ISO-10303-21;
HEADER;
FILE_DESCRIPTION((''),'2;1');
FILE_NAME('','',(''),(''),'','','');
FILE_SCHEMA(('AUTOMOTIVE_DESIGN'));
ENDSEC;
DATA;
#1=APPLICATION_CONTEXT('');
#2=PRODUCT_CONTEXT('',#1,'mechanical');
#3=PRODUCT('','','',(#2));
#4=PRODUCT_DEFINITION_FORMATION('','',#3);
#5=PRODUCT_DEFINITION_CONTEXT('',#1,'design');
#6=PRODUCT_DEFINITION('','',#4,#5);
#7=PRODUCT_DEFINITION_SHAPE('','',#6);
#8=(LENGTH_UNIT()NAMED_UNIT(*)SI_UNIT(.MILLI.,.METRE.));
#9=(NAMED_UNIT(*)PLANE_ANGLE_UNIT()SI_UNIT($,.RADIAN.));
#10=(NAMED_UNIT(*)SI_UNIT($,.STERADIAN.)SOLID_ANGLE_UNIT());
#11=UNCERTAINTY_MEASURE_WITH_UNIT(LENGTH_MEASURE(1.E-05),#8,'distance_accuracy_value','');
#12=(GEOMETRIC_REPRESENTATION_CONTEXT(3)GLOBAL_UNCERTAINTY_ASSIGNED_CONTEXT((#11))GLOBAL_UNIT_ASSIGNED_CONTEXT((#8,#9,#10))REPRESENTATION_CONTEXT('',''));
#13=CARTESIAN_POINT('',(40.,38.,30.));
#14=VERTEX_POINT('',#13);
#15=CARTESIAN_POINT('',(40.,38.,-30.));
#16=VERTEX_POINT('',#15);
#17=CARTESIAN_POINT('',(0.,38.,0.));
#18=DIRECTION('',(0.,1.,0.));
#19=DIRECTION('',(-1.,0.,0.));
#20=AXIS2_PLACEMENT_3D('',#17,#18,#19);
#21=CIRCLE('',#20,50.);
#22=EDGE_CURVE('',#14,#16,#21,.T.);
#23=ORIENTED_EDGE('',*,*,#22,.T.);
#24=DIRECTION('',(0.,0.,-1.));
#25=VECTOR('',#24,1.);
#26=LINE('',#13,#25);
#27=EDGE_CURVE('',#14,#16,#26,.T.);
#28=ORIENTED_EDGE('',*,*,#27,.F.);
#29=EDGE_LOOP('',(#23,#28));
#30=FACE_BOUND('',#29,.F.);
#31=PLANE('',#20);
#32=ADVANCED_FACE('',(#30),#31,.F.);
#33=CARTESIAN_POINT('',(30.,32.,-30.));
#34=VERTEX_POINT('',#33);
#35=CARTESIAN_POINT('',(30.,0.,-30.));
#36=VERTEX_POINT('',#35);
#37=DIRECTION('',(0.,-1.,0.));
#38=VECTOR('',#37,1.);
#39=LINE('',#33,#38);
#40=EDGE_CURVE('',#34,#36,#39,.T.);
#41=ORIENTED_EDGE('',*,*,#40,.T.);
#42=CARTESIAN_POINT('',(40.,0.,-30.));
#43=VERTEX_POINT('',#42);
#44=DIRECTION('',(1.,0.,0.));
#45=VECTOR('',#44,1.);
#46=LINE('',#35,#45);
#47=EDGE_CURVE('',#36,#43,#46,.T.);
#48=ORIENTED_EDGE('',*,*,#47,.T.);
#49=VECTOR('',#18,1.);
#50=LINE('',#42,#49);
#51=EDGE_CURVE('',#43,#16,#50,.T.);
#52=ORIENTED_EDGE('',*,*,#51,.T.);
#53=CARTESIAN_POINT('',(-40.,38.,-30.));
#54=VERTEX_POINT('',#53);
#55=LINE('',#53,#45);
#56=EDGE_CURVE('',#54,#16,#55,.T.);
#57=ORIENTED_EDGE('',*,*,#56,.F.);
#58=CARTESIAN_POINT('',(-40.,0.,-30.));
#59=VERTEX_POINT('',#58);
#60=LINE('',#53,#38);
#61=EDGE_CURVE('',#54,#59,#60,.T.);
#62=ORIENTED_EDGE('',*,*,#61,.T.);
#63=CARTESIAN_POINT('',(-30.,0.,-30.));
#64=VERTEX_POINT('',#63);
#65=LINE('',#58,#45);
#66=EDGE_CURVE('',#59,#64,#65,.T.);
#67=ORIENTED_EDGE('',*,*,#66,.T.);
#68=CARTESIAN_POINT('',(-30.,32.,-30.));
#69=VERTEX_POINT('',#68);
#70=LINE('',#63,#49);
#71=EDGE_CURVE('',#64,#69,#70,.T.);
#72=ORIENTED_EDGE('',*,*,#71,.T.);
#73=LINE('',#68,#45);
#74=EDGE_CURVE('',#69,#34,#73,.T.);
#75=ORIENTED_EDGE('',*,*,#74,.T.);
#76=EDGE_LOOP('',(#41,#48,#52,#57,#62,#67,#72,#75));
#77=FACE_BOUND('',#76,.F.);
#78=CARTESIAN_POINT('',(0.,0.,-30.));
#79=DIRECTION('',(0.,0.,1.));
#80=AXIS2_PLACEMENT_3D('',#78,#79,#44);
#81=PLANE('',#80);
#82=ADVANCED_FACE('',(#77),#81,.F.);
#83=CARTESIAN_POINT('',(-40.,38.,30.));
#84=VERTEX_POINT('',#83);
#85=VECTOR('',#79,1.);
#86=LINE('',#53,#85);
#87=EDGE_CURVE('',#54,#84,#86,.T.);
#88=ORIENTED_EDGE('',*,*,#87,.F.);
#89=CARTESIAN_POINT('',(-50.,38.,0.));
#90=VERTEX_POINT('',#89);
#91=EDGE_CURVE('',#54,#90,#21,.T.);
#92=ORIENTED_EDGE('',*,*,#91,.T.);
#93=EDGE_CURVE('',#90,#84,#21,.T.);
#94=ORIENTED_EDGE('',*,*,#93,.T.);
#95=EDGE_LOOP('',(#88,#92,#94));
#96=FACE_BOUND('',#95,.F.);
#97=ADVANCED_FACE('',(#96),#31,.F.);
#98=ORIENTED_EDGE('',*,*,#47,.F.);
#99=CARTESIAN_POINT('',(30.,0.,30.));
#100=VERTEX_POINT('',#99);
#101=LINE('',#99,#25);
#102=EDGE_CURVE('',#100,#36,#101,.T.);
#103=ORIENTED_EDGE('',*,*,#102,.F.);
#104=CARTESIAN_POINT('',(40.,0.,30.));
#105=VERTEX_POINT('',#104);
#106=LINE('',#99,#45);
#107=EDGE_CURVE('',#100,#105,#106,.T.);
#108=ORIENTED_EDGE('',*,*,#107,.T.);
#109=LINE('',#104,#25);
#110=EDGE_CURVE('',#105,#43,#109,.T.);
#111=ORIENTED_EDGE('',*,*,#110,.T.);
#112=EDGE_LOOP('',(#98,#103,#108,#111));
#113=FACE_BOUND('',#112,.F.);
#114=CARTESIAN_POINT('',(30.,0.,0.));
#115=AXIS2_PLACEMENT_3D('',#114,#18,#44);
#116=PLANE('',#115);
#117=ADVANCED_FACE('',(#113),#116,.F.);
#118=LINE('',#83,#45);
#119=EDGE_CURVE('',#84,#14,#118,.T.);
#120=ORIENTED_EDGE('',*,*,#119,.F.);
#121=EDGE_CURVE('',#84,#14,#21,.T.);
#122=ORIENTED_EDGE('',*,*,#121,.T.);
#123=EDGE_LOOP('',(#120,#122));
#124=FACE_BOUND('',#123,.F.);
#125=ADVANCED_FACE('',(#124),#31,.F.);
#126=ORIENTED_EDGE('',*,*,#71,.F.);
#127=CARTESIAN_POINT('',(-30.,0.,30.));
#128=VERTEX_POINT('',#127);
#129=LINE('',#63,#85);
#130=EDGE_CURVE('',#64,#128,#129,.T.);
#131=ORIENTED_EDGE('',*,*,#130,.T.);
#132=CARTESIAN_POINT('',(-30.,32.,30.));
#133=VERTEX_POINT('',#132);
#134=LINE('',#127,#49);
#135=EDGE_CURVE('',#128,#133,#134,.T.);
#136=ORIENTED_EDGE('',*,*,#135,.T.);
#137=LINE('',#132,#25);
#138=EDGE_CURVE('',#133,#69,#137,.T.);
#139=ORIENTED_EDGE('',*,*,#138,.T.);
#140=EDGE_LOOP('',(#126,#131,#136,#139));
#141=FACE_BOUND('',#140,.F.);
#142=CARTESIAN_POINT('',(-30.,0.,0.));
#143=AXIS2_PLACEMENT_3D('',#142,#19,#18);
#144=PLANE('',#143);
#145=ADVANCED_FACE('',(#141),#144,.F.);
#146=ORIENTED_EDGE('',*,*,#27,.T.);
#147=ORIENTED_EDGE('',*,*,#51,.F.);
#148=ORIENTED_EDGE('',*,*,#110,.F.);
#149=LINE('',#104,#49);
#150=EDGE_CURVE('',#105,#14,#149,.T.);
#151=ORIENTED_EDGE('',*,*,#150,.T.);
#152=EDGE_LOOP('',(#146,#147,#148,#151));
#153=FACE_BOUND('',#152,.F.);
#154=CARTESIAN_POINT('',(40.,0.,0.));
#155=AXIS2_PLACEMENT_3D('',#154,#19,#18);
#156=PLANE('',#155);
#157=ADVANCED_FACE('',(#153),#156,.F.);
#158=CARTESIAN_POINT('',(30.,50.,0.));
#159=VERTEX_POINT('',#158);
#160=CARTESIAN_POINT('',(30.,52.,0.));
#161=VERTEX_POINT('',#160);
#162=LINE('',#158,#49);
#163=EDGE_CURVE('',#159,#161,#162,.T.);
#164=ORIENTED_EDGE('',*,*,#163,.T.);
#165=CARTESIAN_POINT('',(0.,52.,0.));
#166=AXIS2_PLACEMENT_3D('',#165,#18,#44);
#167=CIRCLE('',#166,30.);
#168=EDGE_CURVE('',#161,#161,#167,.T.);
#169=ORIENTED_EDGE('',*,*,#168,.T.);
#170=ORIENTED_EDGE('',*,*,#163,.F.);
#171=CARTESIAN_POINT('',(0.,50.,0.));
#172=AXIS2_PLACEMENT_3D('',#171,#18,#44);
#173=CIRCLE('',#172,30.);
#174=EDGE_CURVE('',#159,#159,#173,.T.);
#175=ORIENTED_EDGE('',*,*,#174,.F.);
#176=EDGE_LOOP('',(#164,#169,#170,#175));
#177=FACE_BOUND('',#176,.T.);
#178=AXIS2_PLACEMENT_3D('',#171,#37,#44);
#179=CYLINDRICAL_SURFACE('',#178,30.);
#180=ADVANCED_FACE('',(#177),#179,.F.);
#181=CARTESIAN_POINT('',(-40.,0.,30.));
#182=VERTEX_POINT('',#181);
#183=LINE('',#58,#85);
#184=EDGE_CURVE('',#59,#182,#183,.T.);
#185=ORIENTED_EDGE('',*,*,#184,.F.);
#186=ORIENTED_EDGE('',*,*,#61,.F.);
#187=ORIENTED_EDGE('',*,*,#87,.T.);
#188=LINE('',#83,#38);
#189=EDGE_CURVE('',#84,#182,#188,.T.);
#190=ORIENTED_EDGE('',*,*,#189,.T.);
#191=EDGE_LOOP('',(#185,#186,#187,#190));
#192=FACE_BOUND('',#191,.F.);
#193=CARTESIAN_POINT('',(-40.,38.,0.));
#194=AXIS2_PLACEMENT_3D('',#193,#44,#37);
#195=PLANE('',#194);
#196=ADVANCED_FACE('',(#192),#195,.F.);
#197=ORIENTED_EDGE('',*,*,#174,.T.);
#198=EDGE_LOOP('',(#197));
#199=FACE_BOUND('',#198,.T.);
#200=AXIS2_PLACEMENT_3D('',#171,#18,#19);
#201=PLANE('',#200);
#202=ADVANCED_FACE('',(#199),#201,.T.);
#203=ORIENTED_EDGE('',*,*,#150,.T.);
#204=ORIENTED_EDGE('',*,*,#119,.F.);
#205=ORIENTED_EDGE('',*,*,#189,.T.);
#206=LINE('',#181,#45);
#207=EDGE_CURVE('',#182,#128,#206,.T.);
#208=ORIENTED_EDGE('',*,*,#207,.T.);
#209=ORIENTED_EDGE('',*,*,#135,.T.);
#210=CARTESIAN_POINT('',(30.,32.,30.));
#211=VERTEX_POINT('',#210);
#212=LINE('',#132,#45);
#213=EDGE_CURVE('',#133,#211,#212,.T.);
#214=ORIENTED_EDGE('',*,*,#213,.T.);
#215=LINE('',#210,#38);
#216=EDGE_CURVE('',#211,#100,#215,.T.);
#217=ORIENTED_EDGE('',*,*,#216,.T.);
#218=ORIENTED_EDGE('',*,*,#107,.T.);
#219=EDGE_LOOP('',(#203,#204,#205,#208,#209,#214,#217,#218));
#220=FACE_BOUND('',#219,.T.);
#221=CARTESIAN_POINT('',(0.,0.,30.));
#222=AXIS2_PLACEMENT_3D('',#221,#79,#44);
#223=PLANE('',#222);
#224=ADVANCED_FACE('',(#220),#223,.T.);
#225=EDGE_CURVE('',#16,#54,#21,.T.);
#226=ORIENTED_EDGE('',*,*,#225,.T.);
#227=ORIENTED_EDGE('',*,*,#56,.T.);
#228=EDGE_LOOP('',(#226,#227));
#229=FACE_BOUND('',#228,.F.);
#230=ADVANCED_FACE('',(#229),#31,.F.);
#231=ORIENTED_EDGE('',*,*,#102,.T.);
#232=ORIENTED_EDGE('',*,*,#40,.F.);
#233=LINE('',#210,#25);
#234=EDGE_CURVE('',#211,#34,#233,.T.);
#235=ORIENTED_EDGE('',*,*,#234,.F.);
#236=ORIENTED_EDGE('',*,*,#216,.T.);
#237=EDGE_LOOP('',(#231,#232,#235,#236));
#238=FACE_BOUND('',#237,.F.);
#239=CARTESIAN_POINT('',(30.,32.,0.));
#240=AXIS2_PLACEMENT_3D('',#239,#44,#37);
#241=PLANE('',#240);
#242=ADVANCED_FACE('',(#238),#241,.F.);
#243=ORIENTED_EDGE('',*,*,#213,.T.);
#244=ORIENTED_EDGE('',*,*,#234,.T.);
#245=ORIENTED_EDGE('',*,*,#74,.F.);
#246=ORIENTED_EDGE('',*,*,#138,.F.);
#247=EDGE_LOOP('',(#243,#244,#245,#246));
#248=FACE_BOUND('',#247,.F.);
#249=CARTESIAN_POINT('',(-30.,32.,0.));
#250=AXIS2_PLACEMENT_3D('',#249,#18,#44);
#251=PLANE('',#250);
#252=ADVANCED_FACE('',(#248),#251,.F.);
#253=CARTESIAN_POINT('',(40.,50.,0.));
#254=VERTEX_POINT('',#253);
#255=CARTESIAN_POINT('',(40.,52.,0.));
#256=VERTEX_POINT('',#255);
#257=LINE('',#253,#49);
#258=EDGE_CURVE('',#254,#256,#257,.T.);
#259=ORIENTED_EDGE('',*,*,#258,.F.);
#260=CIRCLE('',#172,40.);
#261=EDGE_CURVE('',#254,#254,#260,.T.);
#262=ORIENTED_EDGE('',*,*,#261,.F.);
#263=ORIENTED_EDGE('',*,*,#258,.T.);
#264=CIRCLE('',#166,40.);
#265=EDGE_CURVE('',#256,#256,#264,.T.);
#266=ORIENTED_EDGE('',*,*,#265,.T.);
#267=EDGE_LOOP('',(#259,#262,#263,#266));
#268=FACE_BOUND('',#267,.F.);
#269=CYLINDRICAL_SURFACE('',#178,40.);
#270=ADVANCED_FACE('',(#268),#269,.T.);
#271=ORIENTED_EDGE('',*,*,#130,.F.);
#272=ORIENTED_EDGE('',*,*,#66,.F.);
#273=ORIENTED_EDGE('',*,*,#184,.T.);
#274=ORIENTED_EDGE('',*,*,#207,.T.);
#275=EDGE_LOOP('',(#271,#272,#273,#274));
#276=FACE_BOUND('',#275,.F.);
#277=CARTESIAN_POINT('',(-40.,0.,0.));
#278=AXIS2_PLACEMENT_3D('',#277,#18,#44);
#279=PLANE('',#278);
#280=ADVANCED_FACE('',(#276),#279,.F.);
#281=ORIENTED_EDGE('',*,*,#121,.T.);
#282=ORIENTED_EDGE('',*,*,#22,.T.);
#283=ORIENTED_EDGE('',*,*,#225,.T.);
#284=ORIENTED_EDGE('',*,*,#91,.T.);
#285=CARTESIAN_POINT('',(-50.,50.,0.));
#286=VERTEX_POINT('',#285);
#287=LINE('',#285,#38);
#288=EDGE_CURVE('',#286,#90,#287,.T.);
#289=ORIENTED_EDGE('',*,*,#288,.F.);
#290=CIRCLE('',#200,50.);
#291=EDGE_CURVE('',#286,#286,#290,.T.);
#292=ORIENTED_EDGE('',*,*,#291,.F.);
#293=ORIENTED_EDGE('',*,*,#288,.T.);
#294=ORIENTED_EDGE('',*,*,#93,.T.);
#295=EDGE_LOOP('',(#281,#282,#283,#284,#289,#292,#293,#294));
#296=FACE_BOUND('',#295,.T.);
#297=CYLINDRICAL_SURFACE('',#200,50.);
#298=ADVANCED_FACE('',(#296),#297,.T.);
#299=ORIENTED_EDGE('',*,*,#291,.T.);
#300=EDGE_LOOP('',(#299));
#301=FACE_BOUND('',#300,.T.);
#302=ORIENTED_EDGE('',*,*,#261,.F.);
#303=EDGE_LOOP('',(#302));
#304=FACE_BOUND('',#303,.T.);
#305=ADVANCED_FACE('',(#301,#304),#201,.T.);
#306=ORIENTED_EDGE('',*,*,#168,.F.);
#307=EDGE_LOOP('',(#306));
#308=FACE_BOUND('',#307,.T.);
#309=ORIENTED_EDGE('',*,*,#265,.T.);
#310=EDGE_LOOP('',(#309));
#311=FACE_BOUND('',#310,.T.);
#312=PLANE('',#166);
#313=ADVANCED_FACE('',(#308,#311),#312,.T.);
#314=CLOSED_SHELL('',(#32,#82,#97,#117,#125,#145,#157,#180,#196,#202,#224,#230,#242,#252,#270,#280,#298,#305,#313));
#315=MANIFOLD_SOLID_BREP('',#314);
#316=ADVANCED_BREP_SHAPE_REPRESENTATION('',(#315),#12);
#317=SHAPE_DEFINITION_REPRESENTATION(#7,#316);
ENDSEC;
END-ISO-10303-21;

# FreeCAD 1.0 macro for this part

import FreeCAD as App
import Part
import Sketcher

V = App.Vector

doc = App.newDocument("Part")
params = doc.addObject("Spreadsheet::Sheet", "Params")
for row, (alias, value) in enumerate([
    ("sketch1_diameter", "100 mm"),
    ("pad1_length", "12 mm"),
    ("sketch2_width", "10 mm"),
    ("sketch2_width2", "60 mm"),
    ("sketch2_height", "32 mm"),
    ("sketch2_height2", "38 mm"),
    ("pad2_length", "60 mm"),
    ("sketch3_diameter", "80 mm"),
    ("sketch3_diameter2", "60 mm"),
    ("pad3_length", "2 mm"),
], start=1):
    params.set(f"A{row}", alias)
    params.set(f"B{row}", "=" + value)
    params.setAlias(f"B{row}", alias)

body = doc.addObject("PartDesign::Body", "Body")

sketch1 = body.newObject("Sketcher::SketchObject", "Sketch")
sketch1.AttachmentSupport = (doc.getObject("XZ_Plane"), [""])
sketch1.MapMode = "FlatFace"
sketch1.AttachmentOffset = App.Placement(V(0, 0, -50), App.Rotation())
sketch1.addGeometry(Part.Circle(V(0, 0, 0), V(0, 0, 1), 50), False)
sketch1.addConstraint(Sketcher.Constraint("Coincident", 0, 3, -1, 1))
sketch1.addConstraint(Sketcher.Constraint("Diameter", 0, 100.0))
sketch1.setExpression("Constraints[1]", "Params.sketch1_diameter")
pad1 = body.newObject("PartDesign::Pad", "Pad")
pad1.Profile = sketch1
pad1.setExpression("Length", "Params.pad1_length")

sketch2 = body.newObject("Sketcher::SketchObject", "Sketch001")
sketch2.AttachmentSupport = (doc.getObject("XY_Plane"), [""])
sketch2.MapMode = "FlatFace"
sketch2.addGeometry(Part.LineSegment(V(40, 38, 0), V(-40, 38, 0)), False)
sketch2.addGeometry(Part.LineSegment(V(-40, 38, 0), V(-40, 0, 0)), False)
sketch2.addGeometry(Part.LineSegment(V(-40, 0, 0), V(-30, 0, 0)), False)
sketch2.addGeometry(Part.LineSegment(V(-30, 0, 0), V(-30, 32, 0)), False)
sketch2.addGeometry(Part.LineSegment(V(-30, 32, 0), V(30, 32, 0)), False)
sketch2.addGeometry(Part.LineSegment(V(30, 32, 0), V(30, 0, 0)), False)
sketch2.addGeometry(Part.LineSegment(V(30, 0, 0), V(40, 0, 0)), False)
sketch2.addGeometry(Part.LineSegment(V(40, 0, 0), V(40, 38, 0)), False)
sketch2.addConstraint(Sketcher.Constraint("Coincident", 0, 2, 1, 1))
sketch2.addConstraint(Sketcher.Constraint("Coincident", 1, 2, 2, 1))
sketch2.addConstraint(Sketcher.Constraint("Coincident", 2, 2, 3, 1))
sketch2.addConstraint(Sketcher.Constraint("Coincident", 3, 2, 4, 1))
sketch2.addConstraint(Sketcher.Constraint("Coincident", 4, 2, 5, 1))
sketch2.addConstraint(Sketcher.Constraint("Coincident", 5, 2, 6, 1))
sketch2.addConstraint(Sketcher.Constraint("Coincident", 6, 2, 7, 1))
sketch2.addConstraint(Sketcher.Constraint("Coincident", 7, 2, 0, 1))
sketch2.addConstraint(Sketcher.Constraint("Horizontal", 0))
sketch2.addConstraint(Sketcher.Constraint("Vertical", 1))
sketch2.addConstraint(Sketcher.Constraint("Horizontal", 2))
sketch2.addConstraint(Sketcher.Constraint("Vertical", 3))
sketch2.addConstraint(Sketcher.Constraint("Horizontal", 4))
sketch2.addConstraint(Sketcher.Constraint("Vertical", 5))
sketch2.addConstraint(Sketcher.Constraint("Horizontal", 6))
sketch2.addConstraint(Sketcher.Constraint("Vertical", 7))
sketch2.addConstraint(Sketcher.Constraint("Symmetric", 2, 2, 5, 2, -1, 1))
sketch2.addConstraint(Sketcher.Constraint("Symmetric", 1, 2, 6, 2, -2))
sketch2.addConstraint(Sketcher.Constraint("DistanceX", 2, 1, 2, 2, 10.0))
sketch2.addConstraint(Sketcher.Constraint("DistanceX", 4, 1, 4, 2, 60.0))
sketch2.addConstraint(Sketcher.Constraint("DistanceY", 3, 1, 3, 2, 32.0))
sketch2.addConstraint(Sketcher.Constraint("DistanceY", 1, 2, 1, 1, 38.0))
sketch2.setExpression("Constraints[18]", "Params.sketch2_width")
sketch2.setExpression("Constraints[19]", "Params.sketch2_width2")
sketch2.setExpression("Constraints[20]", "Params.sketch2_height")
sketch2.setExpression("Constraints[21]", "Params.sketch2_height2")
pad2 = body.newObject("PartDesign::Pad", "Pad001")
pad2.Profile = sketch2
pad2.setExpression("Length", "Params.pad2_length")
pad2.Midplane = True

sketch3 = body.newObject("Sketcher::SketchObject", "Sketch002")
sketch3.AttachmentSupport = (doc.getObject("XZ_Plane"), [""])
sketch3.MapMode = "FlatFace"
sketch3.AttachmentOffset = App.Placement(V(0, 0, -50), App.Rotation())
sketch3.addGeometry(Part.Circle(V(0, 0, 0), V(0, 0, 1), 40), False)
sketch3.addGeometry(Part.Circle(V(0, 0, 0), V(0, 0, 1), 30), False)
sketch3.addConstraint(Sketcher.Constraint("Coincident", 0, 3, -1, 1))
sketch3.addConstraint(Sketcher.Constraint("Coincident", 1, 3, -1, 1))
sketch3.addConstraint(Sketcher.Constraint("Diameter", 0, 80.0))
sketch3.addConstraint(Sketcher.Constraint("Diameter", 1, 60.0))
sketch3.setExpression("Constraints[2]", "Params.sketch3_diameter")
sketch3.setExpression("Constraints[3]", "Params.sketch3_diameter2")
pad3 = body.newObject("PartDesign::Pad", "Pad002")
pad3.Profile = sketch3
pad3.setExpression("Length", "Params.pad3_length")
pad3.Reversed = True

doc.recompute()
